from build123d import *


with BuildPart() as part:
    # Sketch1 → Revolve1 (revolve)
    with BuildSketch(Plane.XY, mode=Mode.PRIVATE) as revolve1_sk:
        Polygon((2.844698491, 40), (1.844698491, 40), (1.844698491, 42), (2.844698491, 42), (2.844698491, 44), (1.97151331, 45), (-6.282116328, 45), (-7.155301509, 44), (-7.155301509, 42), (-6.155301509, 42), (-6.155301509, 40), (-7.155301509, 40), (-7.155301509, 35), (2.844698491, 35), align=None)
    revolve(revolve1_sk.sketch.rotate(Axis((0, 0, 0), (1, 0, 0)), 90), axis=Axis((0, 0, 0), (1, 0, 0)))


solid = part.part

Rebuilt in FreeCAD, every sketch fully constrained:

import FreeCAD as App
import Part
import Sketcher

V = App.Vector


def add_polygon(sketch, points):
    """Adds a closed chain of lines whose ends are joined by coincident constraints."""
    first, n = sketch.GeometryCount, len(points)
    for a, b in zip(points, points[1:] + points[:1]):
        sketch.addGeometry(Part.LineSegment(App.Vector(*a, 0), App.Vector(*b, 0)), False)
    for i in range(n):
        sketch.addConstraint(Sketcher.Constraint("Coincident", first + i, 2, first + (i + 1) % n, 1))

doc = App.newDocument("Part")
params = doc.addObject("Spreadsheet::Sheet", "Params")
for row, (alias, value) in enumerate([
    ("sketch1_width", "1 mm"),
    ("sketch1_width2", "10 mm"),
    ("sketch1_height", "2 mm"),
    ("sketch1_height2", "5 mm"),
    ("revolution_angle", "360 deg"),
], start=1):
    params.set(f"A{row}", alias)
    params.set(f"B{row}", "=" + value)
    params.setAlias(f"B{row}", alias)

body = doc.addObject("PartDesign::Body", "Body")

sketch1 = doc.addObject("Sketcher::SketchObject", "Sketch")
body.addObject(sketch1)
sketch1.AttachmentSupport = (doc.XY_Plane, [""])
sketch1.MapMode = "FlatFace"
add_polygon(sketch1, [(2.844698, 40), (1.844698, 40), (1.844698, 42), (2.844698, 42), (2.844698, 44), (1.971513, 45), (-6.282116, 45), (-7.155302, 44), (-7.155302, 42), (-6.155302, 42), (-6.155302, 40), (-7.155302, 40), (-7.155302, 35), (2.844698, 35)])
sketch1.addConstraint(Sketcher.Constraint("Horizontal", 0))
sketch1.addConstraint(Sketcher.Constraint("Vertical", 1))
sketch1.addConstraint(Sketcher.Constraint("Horizontal", 2))
sketch1.addConstraint(Sketcher.Constraint("Vertical", 3))
sketch1.addConstraint(Sketcher.Constraint("Horizontal", 5))
sketch1.addConstraint(Sketcher.Constraint("Vertical", 7))
sketch1.addConstraint(Sketcher.Constraint("Horizontal", 8))
sketch1.addConstraint(Sketcher.Constraint("Vertical", 9))
sketch1.addConstraint(Sketcher.Constraint("Horizontal", 10))
sketch1.addConstraint(Sketcher.Constraint("Vertical", 11))
sketch1.addConstraint(Sketcher.Constraint("Horizontal", 12))
sketch1.addConstraint(Sketcher.Constraint("Vertical", 13))
sketch1.addConstraint(Sketcher.Constraint("Horizontal", 3, 2, 6, 2))
sketch1.addConstraint(Sketcher.Constraint("Horizontal", 2, 2, 7, 2))
sketch1.addConstraint(Sketcher.Constraint("Horizontal", 0, 2, 9, 2))
sketch1.addConstraint(Sketcher.Constraint("Vertical", 7, 2, 10, 2))
sketch1.addConstraint(Sketcher.Constraint("Vertical", 3, 2, 12, 2))
sketch1.addConstraint(Sketcher.Constraint("Equal", 2, 8))
sketch1.addConstraint(Sketcher.Constraint("Equal", 1, 3))
sketch1.addConstraint(Sketcher.Constraint("Equal", 4, 6))
sketch1.addConstraint(Sketcher.Constraint("DistanceX", 0, 2, 0, 1, 1.0))
sketch1.addConstraint(Sketcher.Constraint("DistanceX", 12, 1, 12, 2, 10.0))
sketch1.addConstraint(Sketcher.Constraint("DistanceY", 1, 1, 1, 2, 2.0))
sketch1.addConstraint(Sketcher.Constraint("DistanceY", 11, 2, 11, 1, 5.0))
sketch1.addConstraint(Sketcher.Constraint("DistanceY", -1, 1, 0, 2, 40.0))
sketch1.addConstraint(Sketcher.Constraint("DistanceY", -1, 1, 4, 2, 45.0))
sketch1.addConstraint(Sketcher.Constraint("DistanceX", 5, 2, 5, 1, 8.25363))
sketch1.addConstraint(Sketcher.Constraint("DistanceX", -1, 1, 0, 2, 1.844698))
sketch1.setExpression("Constraints[34]", "Params.sketch1_width")
sketch1.setExpression("Constraints[35]", "Params.sketch1_width2")
sketch1.setExpression("Constraints[36]", "Params.sketch1_height")
sketch1.setExpression("Constraints[37]", "Params.sketch1_height2")
revolution = doc.addObject("PartDesign::Revolution", "Revolution")
body.addObject(revolution)
revolution.Profile = sketch1
revolution.ReferenceAxis = (sketch1, ["H_Axis"])
revolution.setExpression("Angle", "Params.revolution_angle")

doc.recompute()
